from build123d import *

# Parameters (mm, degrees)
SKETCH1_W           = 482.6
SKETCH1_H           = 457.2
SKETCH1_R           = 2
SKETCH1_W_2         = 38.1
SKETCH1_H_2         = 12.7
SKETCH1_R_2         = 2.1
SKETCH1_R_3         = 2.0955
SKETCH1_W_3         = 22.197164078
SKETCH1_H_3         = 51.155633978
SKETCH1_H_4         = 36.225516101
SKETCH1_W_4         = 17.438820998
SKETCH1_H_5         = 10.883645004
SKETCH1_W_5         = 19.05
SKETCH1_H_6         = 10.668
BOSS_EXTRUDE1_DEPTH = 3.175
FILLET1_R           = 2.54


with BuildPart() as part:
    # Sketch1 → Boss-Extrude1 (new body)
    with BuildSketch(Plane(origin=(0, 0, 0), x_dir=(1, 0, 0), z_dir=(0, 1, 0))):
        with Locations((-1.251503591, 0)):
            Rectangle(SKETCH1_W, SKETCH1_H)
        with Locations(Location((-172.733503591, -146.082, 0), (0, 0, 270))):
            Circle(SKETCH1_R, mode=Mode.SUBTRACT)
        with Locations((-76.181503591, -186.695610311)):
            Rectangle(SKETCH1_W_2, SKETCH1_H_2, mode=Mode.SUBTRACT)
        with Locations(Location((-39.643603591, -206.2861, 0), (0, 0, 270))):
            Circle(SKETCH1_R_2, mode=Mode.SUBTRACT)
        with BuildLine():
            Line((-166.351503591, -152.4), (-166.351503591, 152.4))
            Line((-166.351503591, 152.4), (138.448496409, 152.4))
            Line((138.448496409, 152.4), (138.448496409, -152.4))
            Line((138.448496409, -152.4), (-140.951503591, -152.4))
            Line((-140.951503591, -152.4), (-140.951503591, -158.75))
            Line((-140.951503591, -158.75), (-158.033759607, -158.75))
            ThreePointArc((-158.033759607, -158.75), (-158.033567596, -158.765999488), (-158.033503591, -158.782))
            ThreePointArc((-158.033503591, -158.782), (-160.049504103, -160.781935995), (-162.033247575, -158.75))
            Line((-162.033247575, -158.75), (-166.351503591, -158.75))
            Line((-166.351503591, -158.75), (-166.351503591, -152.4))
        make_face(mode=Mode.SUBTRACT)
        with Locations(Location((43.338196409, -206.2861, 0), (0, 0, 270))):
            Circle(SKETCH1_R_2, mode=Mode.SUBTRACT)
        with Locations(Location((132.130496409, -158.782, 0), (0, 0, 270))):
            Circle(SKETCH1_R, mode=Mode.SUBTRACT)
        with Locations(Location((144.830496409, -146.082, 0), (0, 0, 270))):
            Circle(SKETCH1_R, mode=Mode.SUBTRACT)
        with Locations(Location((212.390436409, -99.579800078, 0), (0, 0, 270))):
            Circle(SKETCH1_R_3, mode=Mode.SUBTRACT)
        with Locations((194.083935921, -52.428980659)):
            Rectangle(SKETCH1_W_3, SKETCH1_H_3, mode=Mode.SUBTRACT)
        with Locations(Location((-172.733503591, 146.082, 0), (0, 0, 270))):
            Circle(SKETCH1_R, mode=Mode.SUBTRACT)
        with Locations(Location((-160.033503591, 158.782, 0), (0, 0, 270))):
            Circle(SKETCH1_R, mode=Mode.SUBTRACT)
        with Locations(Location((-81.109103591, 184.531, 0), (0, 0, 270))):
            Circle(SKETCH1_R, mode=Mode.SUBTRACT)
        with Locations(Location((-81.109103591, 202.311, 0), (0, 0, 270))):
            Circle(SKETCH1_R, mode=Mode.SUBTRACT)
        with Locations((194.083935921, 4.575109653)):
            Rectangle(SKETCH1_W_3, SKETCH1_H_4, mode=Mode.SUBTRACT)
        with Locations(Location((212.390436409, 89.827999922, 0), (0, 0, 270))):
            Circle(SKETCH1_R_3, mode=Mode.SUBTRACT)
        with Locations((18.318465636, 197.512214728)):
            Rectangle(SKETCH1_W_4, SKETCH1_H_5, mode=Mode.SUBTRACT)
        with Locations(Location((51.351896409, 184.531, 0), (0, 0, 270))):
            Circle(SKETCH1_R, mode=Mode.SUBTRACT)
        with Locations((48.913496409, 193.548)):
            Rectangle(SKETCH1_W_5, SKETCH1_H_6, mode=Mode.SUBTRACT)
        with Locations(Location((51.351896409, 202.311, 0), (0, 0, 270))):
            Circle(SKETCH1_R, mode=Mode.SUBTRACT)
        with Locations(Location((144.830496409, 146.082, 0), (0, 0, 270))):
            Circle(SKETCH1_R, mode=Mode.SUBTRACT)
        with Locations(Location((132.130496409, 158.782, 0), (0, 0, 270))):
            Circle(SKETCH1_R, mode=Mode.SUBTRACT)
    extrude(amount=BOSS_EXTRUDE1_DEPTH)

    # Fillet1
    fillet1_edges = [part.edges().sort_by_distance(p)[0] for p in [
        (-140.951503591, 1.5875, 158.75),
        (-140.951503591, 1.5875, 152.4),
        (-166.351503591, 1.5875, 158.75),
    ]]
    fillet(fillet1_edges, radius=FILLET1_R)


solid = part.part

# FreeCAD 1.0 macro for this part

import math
import FreeCAD as App
import Part
import Sketcher
Q = App.Units.Quantity


def edges_at(feature, points):
    """Names of the edges that pass closest to the given points."""
    edges = feature.Shape.Edges
    near = lambda p: min(range(len(edges)), key=lambda i: edges[i].distToShape(Part.Vertex(*p))[0])
    return sorted({f"Edge{near(p) + 1}" for p in points})


def add_polygon(sketch, points):
    """Adds a closed chain of lines whose ends are joined by coincident constraints."""
    first, n = sketch.GeometryCount, len(points)
    for a, b in zip(points, points[1:] + points[:1]):
        sketch.addGeometry(Part.LineSegment(App.Vector(*a, 0), App.Vector(*b, 0)), False)
    for i in range(n):
        sketch.addConstraint(Sketcher.Constraint("Coincident", first + i, 2, first + (i + 1) % n, 1))

doc = App.newDocument("Part")
body = doc.addObject("PartDesign::Body", "Body")

sketch1 = doc.addObject("Sketcher::SketchObject", "Sketch")
body.addObject(sketch1)
sketch1.AttachmentSupport = (doc.XZ_Plane, [""])
sketch1.MapMode = "FlatFace"
add_polygon(sketch1, [(-242.551504, -228.6), (-242.551504, 228.6), (240.048496, 228.6), (240.048496, -228.6)])
sketch1.addGeometry(Part.Circle(App.Vector(-172.733504, 146.082, 0), App.Vector(0, 0, 1), 2), False)
add_polygon(sketch1, [(-57.131504, 193.04561), (-95.231504, 193.04561), (-95.231504, 180.34561), (-57.131504, 180.34561)])
sketch1.addGeometry(Part.Circle(App.Vector(-39.643604, 206.2861, 0), App.Vector(0, 0, 1), 2.1), False)
sketch1.addGeometry(Part.LineSegment(App.Vector(-166.351504, 158.75, 0), App.Vector(-166.351504, -152.4, 0)), False)
sketch1.addGeometry(Part.LineSegment(App.Vector(-166.351504, -152.4, 0), App.Vector(138.448496, -152.4, 0)), False)
sketch1.addGeometry(Part.LineSegment(App.Vector(138.448496, -152.4, 0), App.Vector(138.448496, 152.4, 0)), False)
sketch1.addGeometry(Part.LineSegment(App.Vector(138.448496, 152.4, 0), App.Vector(-140.951504, 152.4, 0)), False)
sketch1.addGeometry(Part.LineSegment(App.Vector(-140.951504, 152.4, 0), App.Vector(-140.951504, 158.75, 0)), False)
sketch1.addGeometry(Part.LineSegment(App.Vector(-140.951504, 158.75, 0), App.Vector(-158.03376, 158.75, 0)), False)
sketch1.addGeometry(Part.ArcOfCircle(Part.Circle(App.Vector(-160.033506, 158.782, 0), App.Vector(0, 0, 1), 2.000002), math.radians(-0.91677), math.radians(0)), False)
sketch1.addGeometry(Part.ArcOfCircle(Part.Circle(App.Vector(-160.033504, 158.782, 0), App.Vector(0, 0, 1), 2), math.radians(0), math.radians(180.916772)), False)
sketch1.addGeometry(Part.LineSegment(App.Vector(-162.033248, 158.75, 0), App.Vector(-166.351504, 158.75, 0)), False)
sketch1.addGeometry(Part.Circle(App.Vector(43.338196, 206.2861, 0), App.Vector(0, 0, 1), 2.1), False)
sketch1.addGeometry(Part.Circle(App.Vector(132.130496, 158.782, 0), App.Vector(0, 0, 1), 2), False)
sketch1.addGeometry(Part.Circle(App.Vector(144.830496, 146.082, 0), App.Vector(0, 0, 1), 2), False)
sketch1.addGeometry(Part.Circle(App.Vector(212.390436, 99.5798, 0), App.Vector(0, 0, 1), 2.0955), False)
add_polygon(sketch1, [(205.182518, 78.006798), (182.985354, 78.006798), (182.985354, 26.851164), (205.182518, 26.851164)])
sketch1.addGeometry(Part.Circle(App.Vector(-172.733504, -146.082, 0), App.Vector(0, 0, 1), 2), False)
sketch1.addGeometry(Part.Circle(App.Vector(-160.033504, -158.782, 0), App.Vector(0, 0, 1), 2), False)
sketch1.addGeometry(Part.Circle(App.Vector(-81.109104, -184.531, 0), App.Vector(0, 0, 1), 2), False)
sketch1.addGeometry(Part.Circle(App.Vector(-81.109104, -202.311, 0), App.Vector(0, 0, 1), 2), False)
add_polygon(sketch1, [(27.037876, -192.070392), (9.599055, -192.070392), (9.599055, -202.954037), (27.037876, -202.954037)])
add_polygon(sketch1, [(205.182518, 13.537648), (182.985354, 13.537648), (182.985354, -22.687868), (205.182518, -22.687868)])
sketch1.addGeometry(Part.Circle(App.Vector(212.390436, -89.828, 0), App.Vector(0, 0, 1), 2.0955), False)
sketch1.addGeometry(Part.Circle(App.Vector(51.351896, -184.531, 0), App.Vector(0, 0, 1), 2), False)
add_polygon(sketch1, [(58.438496, -188.214), (39.388496, -188.214), (39.388496, -198.882), (58.438496, -198.882)])
sketch1.addGeometry(Part.Circle(App.Vector(51.351896, -202.311, 0), App.Vector(0, 0, 1), 2), False)
sketch1.addGeometry(Part.Circle(App.Vector(144.830496, -146.082, 0), App.Vector(0, 0, 1), 2), False)
sketch1.addGeometry(Part.Circle(App.Vector(132.130496, -158.782, 0), App.Vector(0, 0, 1), 2), False)
sketch1.addConstraint(Sketcher.Constraint("Coincident", 10, 2, 11, 1))
sketch1.addConstraint(Sketcher.Constraint("Coincident", 11, 2, 12, 1))
sketch1.addConstraint(Sketcher.Constraint("Coincident", 12, 2, 13, 1))
sketch1.addConstraint(Sketcher.Constraint("Coincident", 13, 2, 14, 1))
sketch1.addConstraint(Sketcher.Constraint("Coincident", 14, 2, 15, 1))
sketch1.addConstraint(Sketcher.Constraint("Coincident", 15, 2, 16, 1))
sketch1.addConstraint(Sketcher.Constraint("Tangent", 16, 2, 17, 1))
sketch1.addConstraint(Sketcher.Constraint("Coincident", 17, 2, 18, 1))
sketch1.addConstraint(Sketcher.Constraint("Coincident", 18, 2, 10, 1))
sketch1.addConstraint(Sketcher.Constraint("Vertical", 0))
sketch1.addConstraint(Sketcher.Constraint("Horizontal", 1))
sketch1.addConstraint(Sketcher.Constraint("Vertical", 2))
sketch1.addConstraint(Sketcher.Constraint("Horizontal", 3))
sketch1.addConstraint(Sketcher.Constraint("Horizontal", 5))
sketch1.addConstraint(Sketcher.Constraint("Vertical", 6))
sketch1.addConstraint(Sketcher.Constraint("Horizontal", 7))
sketch1.addConstraint(Sketcher.Constraint("Vertical", 8))
sketch1.addConstraint(Sketcher.Constraint("Vertical", 10))
sketch1.addConstraint(Sketcher.Constraint("Horizontal", 11))
sketch1.addConstraint(Sketcher.Constraint("Vertical", 12))
sketch1.addConstraint(Sketcher.Constraint("Horizontal", 13))
sketch1.addConstraint(Sketcher.Constraint("Vertical", 14))
sketch1.addConstraint(Sketcher.Constraint("Horizontal", 15))
sketch1.addConstraint(Sketcher.Constraint("Horizontal", 18))
sketch1.addConstraint(Sketcher.Constraint("Horizontal", 23))
sketch1.addConstraint(Sketcher.Constraint("Vertical", 24))
sketch1.addConstraint(Sketcher.Constraint("Horizontal", 25))
sketch1.addConstraint(Sketcher.Constraint("Vertical", 26))
sketch1.addConstraint(Sketcher.Constraint("Horizontal", 31))
sketch1.addConstraint(Sketcher.Constraint("Vertical", 32))
sketch1.addConstraint(Sketcher.Constraint("Horizontal", 33))
sketch1.addConstraint(Sketcher.Constraint("Vertical", 34))
sketch1.addConstraint(Sketcher.Constraint("Horizontal", 35))
sketch1.addConstraint(Sketcher.Constraint("Vertical", 36))
sketch1.addConstraint(Sketcher.Constraint("Horizontal", 37))
sketch1.addConstraint(Sketcher.Constraint("Vertical", 38))
sketch1.addConstraint(Sketcher.Constraint("Horizontal", 41))
sketch1.addConstraint(Sketcher.Constraint("Vertical", 42))
sketch1.addConstraint(Sketcher.Constraint("Horizontal", 43))
sketch1.addConstraint(Sketcher.Constraint("Vertical", 44))
sketch1.addConstraint(Sketcher.Constraint("Equal", 4, 17))
sketch1.addConstraint(Sketcher.Constraint("Equal", 9, 19))
sketch1.addConstraint(Sketcher.Constraint("Equal", 17, 20))
sketch1.addConstraint(Sketcher.Constraint("Equal", 20, 21))
sketch1.addConstraint(Sketcher.Constraint("Equal", 21, 27))
sketch1.addConstraint(Sketcher.Constraint("Equal", 27, 28))
sketch1.addConstraint(Sketcher.Constraint("Equal", 28, 29))
sketch1.addConstraint(Sketcher.Constraint("Equal", 29, 30))
sketch1.addConstraint(Sketcher.Constraint("Equal", 22, 39))
sketch1.addConstraint(Sketcher.Constraint("Equal", 30, 40))
sketch1.addConstraint(Sketcher.Constraint("Equal", 40, 45))
sketch1.addConstraint(Sketcher.Constraint("Equal", 45, 46))
sketch1.addConstraint(Sketcher.Constraint("Equal", 46, 47))
sketch1.addConstraint(Sketcher.Constraint("Symmetric", 4, 3, 27, 3, -1))
sketch1.addConstraint(Sketcher.Constraint("Symmetric", 16, 3, 28, 3, -1))
sketch1.addConstraint(Sketcher.Constraint("Symmetric", 21, 3, 46, 3, -1))
sketch1.addConstraint(Sketcher.Constraint("Symmetric", 20, 3, 47, 3, -1))
sketch1.addConstraint(Sketcher.Constraint("Horizontal", 9, 3, 19, 3))
sketch1.addConstraint(Sketcher.Constraint("Horizontal", 17, 3, 20, 3))
sketch1.addConstraint(Sketcher.Constraint("Horizontal", 4, 3, 21, 3))
sketch1.addConstraint(Sketcher.Constraint("Horizontal", 29, 3, 40, 3))
sketch1.addConstraint(Sketcher.Constraint("Horizontal", 30, 3, 45, 3))
sketch1.addConstraint(Sketcher.Constraint("Horizontal", 20, 3, 16, 2))
sketch1.addConstraint(Sketcher.Constraint("Horizontal", 15, 2, 17, 2))
sketch1.addConstraint(Sketcher.Constraint("Vertical", 17, 3, 28, 3))
sketch1.addConstraint(Sketcher.Constraint("Vertical", 29, 3, 30, 3))
sketch1.addConstraint(Sketcher.Constraint("Vertical", 22, 3, 39, 3))
sketch1.addConstraint(Sketcher.Constraint("Vertical", 40, 3, 45, 3))
sketch1.addConstraint(Sketcher.Constraint("Vertical", 24, 2, 35, 2))
sketch1.addConstraint(Sketcher.Constraint("Vertical", 26, 2, 37, 2))
sketch1.addConstraint(Sketcher.Constraint("Equal", 11, 12))
sketch1.addConstraint(Sketcher.Constraint("DistanceX", 1, 1, 1, 2, Q("19 in")))
sketch1.addConstraint(Sketcher.Constraint("DistanceX", 11, 1, 11, 2, Q("12 in")))
sketch1.addConstraint(Sketcher.Constraint("DistanceX", 13, 2, 13, 1, Q("11 in")))
sketch1.addConstraint(Sketcher.Constraint("DistanceY", 0, 1, 0, 2, Q("18 in")))
sketch1.addConstraint(Sketcher.Constraint("Diameter", 22, Q("0.165 in")))
sketch1.addConstraint(Sketcher.Constraint("DistanceX", 5, 2, 5, 1, Q("1.5 in")))
sketch1.addConstraint(Sketcher.Constraint("DistanceY", 6, 2, 6, 1, Q("0.5 in")))
sketch1.addConstraint(Sketcher.Constraint("DistanceY", -1, 1, 0, 2, Q("9 in")))
sketch1.addConstraint(Sketcher.Constraint("DistanceY", 10, 2, -1, 1, Q("6 in")))
sketch1.addConstraint(Sketcher.Constraint("DistanceX", 3, 2, 10, 2, Q("3 in")))
sketch1.addConstraint(Sketcher.Constraint("DistanceX", 41, 2, 41, 1, Q("0.75 in")))
sketch1.addConstraint(Sketcher.Constraint("DistanceY", 10, 2, 10, 1, Q("12.25 in")))
sketch1.addConstraint(Sketcher.Constraint("DistanceY", 42, 2, 42, 1, Q("0.42 in")))
sketch1.addConstraint(Sketcher.Constraint("DistanceX", 4, 3, 16, 3, Q("0.4999999 in")))
sketch1.addConstraint(Sketcher.Constraint("DistanceY", 4, 3, 16, 3, Q("0.5 in")))
sketch1.addConstraint(Sketcher.Constraint("DistanceX", 20, 3, 21, 3, Q("0.5 in")))
sketch1.addConstraint(Sketcher.Constraint("DistanceY", 30, 3, 29, 3, Q("0.7 in")))
sketch1.addConstraint(Sketcher.Constraint("DistanceX", 13, 2, 6, 2, Q("1.8 in")))
sketch1.addConstraint(Sketcher.Constraint("Diameter", 4, Q("4 mm")))
sketch1.addConstraint(Sketcher.Constraint("Diameter", 9, Q("4.2 mm")))
sketch1.addConstraint(Sketcher.Constraint("DistanceY", 41, 2, -1, 1, Q("7.41 in")))
sketch1.addConstraint(Sketcher.Constraint("DistanceY", 29, 3, -1, 1, Q("7.265 in")))
sketch1.addConstraint(Sketcher.Constraint("DistanceX", 9, 3, 19, 3, Q("3.267 in")))
sketch1.addConstraint(Sketcher.Constraint("DistanceY", 39, 3, 22, 3, Q("7.457 in")))
sketch1.addConstraint(Sketcher.Constraint("DistanceX", 29, 3, 40, 3, Q("5.215 in")))
sketch1.addConstraint(Sketcher.Constraint("DistanceX", 45, 3, 2, 2, Q("7.429 in")))
sketch1.addConstraint(Sketcher.Constraint("DistanceX", 41, 2, 40, 3, Q("0.471 in")))
sketch1.addConstraint(Sketcher.Constraint("DistanceY", -1, 1, 9, 3, Q("8.1215 in")))
sketch1.addConstraint(Sketcher.Constraint("DistanceX", 19, 3, 22, 3, Q("6.6556 in")))
sketch1.addConstraint(Sketcher.Constraint("DistanceX", 29, 3, 39, 3, Q("11.5551 in")))
sketch1.addConstraint(Sketcher.Constraint("DistanceX", 31, 2, 31, 1, Q("17.438821 mm")))
sketch1.addConstraint(Sketcher.Constraint("DistanceY", -1, 1, 4, 3, Q("146.082 mm")))
sketch1.addConstraint(Sketcher.Constraint("DistanceY", -1, 1, 22, 3, Q("99.5798 mm")))
sketch1.addConstraint(Sketcher.Constraint("DistanceX", 4, 3, 9, 3, Q("133.0899 mm")))
sketch1.addConstraint(Sketcher.Constraint("DistanceX", 19, 3, 20, 3, Q("88.7923 mm")))
sketch1.addConstraint(Sketcher.Constraint("DistanceX", 23, 2, 23, 1, Q("22.197164 mm")))
sketch1.addConstraint(Sketcher.Constraint("DistanceY", 24, 2, 24, 1, Q("51.155634 mm")))
sketch1.addConstraint(Sketcher.Constraint("DistanceY", 32, 2, 32, 1, Q("10.883645 mm")))
sketch1.addConstraint(Sketcher.Constraint("DistanceY", 36, 2, 36, 1, Q("36.225516 mm")))
sketch1.addConstraint(Sketcher.Constraint("DistanceY", -1, 1, 5, 2, Q("193.04561 mm")))
sketch1.addConstraint(Sketcher.Constraint("DistanceX", 15, 2, -1, 1, Q("158.03376 mm")))
sketch1.addConstraint(Sketcher.Constraint("DistanceY", -1, 1, 35, 2, Q("13.537648 mm")))
sketch1.addConstraint(Sketcher.Constraint("DistanceX", 25, 2, 22, 3, Q("7.207918 mm")))
sketch1.addConstraint(Sketcher.Constraint("DistanceX", 31, 2, 40, 3, Q("41.752841 mm")))
sketch1.addConstraint(Sketcher.Constraint("DistanceY", 35, 2, 23, 2, Q("64.469149 mm")))
sketch1.addConstraint(Sketcher.Constraint("DistanceY", 31, 2, -1, 1, Q("192.070392 mm")))
pad1 = doc.addObject("PartDesign::Pad", "Pad")
body.addObject(pad1)
pad1.Profile = sketch1
pad1.Length = Q("0.125 in")
pad1.Reversed = True
doc.recompute()

fillet = doc.addObject("PartDesign::Fillet", "Fillet")
body.addObject(fillet)
fillet.Base = (pad1, edges_at(pad1, [(-140.952, 1.587, 158.75), (-140.952, 1.587, 152.4), (-166.352, 1.587, 158.75)]))
fillet.Radius = Q("0.1 in")

doc.recompute()
